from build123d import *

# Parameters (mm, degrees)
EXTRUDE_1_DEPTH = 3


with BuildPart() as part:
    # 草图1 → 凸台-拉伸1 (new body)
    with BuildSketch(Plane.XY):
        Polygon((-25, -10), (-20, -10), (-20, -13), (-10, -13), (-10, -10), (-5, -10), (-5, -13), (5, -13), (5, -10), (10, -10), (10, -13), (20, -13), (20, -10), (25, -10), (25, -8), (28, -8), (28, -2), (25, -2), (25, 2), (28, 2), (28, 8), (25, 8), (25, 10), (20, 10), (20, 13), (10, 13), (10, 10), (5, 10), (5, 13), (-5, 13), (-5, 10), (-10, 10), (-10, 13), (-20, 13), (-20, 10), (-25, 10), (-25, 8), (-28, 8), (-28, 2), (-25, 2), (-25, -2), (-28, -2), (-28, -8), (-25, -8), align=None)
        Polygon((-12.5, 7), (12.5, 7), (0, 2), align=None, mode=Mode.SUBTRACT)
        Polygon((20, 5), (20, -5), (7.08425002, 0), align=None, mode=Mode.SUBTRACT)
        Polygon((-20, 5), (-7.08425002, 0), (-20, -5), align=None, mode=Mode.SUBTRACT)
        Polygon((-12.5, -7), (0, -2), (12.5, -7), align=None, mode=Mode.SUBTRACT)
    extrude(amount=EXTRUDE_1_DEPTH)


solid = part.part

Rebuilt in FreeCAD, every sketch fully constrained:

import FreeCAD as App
import Part
import Sketcher

doc = App.newDocument("Part")
body = doc.addObject("PartDesign::Body", "Body")

sketch1 = body.newObject("Sketcher::SketchObject", "Sketch")
sketch1.AttachmentSupport = (doc.getObject("XY_Plane"), [""])
sketch1.MapMode = "FlatFace"
sketch1.addGeometry(Part.LineSegment(App.Vector(-25, -10, 0), App.Vector(-20, -10, 0)), False)
sketch1.addGeometry(Part.LineSegment(App.Vector(-20, -10, 0), App.Vector(-20, -13, 0)), False)
sketch1.addGeometry(Part.LineSegment(App.Vector(-20, -13, 0), App.Vector(-10, -13, 0)), False)
sketch1.addGeometry(Part.LineSegment(App.Vector(-10, -13, 0), App.Vector(-10, -10, 0)), False)
sketch1.addGeometry(Part.LineSegment(App.Vector(-10, -10, 0), App.Vector(-5, -10, 0)), False)
sketch1.addGeometry(Part.LineSegment(App.Vector(-5, -10, 0), App.Vector(-5, -13, 0)), False)
sketch1.addGeometry(Part.LineSegment(App.Vector(-5, -13, 0), App.Vector(5, -13, 0)), False)
sketch1.addGeometry(Part.LineSegment(App.Vector(5, -13, 0), App.Vector(5, -10, 0)), False)
sketch1.addGeometry(Part.LineSegment(App.Vector(5, -10, 0), App.Vector(10, -10, 0)), False)
sketch1.addGeometry(Part.LineSegment(App.Vector(10, -10, 0), App.Vector(10, -13, 0)), False)
sketch1.addGeometry(Part.LineSegment(App.Vector(10, -13, 0), App.Vector(20, -13, 0)), False)
sketch1.addGeometry(Part.LineSegment(App.Vector(20, -13, 0), App.Vector(20, -10, 0)), False)
sketch1.addGeometry(Part.LineSegment(App.Vector(20, -10, 0), App.Vector(25, -10, 0)), False)
sketch1.addGeometry(Part.LineSegment(App.Vector(25, -10, 0), App.Vector(25, -8, 0)), False)
sketch1.addGeometry(Part.LineSegment(App.Vector(25, -8, 0), App.Vector(28, -8, 0)), False)
sketch1.addGeometry(Part.LineSegment(App.Vector(28, -8, 0), App.Vector(28, -2, 0)), False)
sketch1.addGeometry(Part.LineSegment(App.Vector(28, -2, 0), App.Vector(25, -2, 0)), False)
sketch1.addGeometry(Part.LineSegment(App.Vector(25, -2, 0), App.Vector(25, 2, 0)), False)
sketch1.addGeometry(Part.LineSegment(App.Vector(25, 2, 0), App.Vector(28, 2, 0)), False)
sketch1.addGeometry(Part.LineSegment(App.Vector(28, 2, 0), App.Vector(28, 8, 0)), False)
sketch1.addGeometry(Part.LineSegment(App.Vector(28, 8, 0), App.Vector(25, 8, 0)), False)
sketch1.addGeometry(Part.LineSegment(App.Vector(25, 8, 0), App.Vector(25, 10, 0)), False)
sketch1.addGeometry(Part.LineSegment(App.Vector(25, 10, 0), App.Vector(20, 10, 0)), False)
sketch1.addGeometry(Part.LineSegment(App.Vector(20, 10, 0), App.Vector(20, 13, 0)), False)
sketch1.addGeometry(Part.LineSegment(App.Vector(20, 13, 0), App.Vector(10, 13, 0)), False)
sketch1.addGeometry(Part.LineSegment(App.Vector(10, 13, 0), App.Vector(10, 10, 0)), False)
sketch1.addGeometry(Part.LineSegment(App.Vector(10, 10, 0), App.Vector(5, 10, 0)), False)
sketch1.addGeometry(Part.LineSegment(App.Vector(5, 10, 0), App.Vector(5, 13, 0)), False)
sketch1.addGeometry(Part.LineSegment(App.Vector(5, 13, 0), App.Vector(-5, 13, 0)), False)
sketch1.addGeometry(Part.LineSegment(App.Vector(-5, 13, 0), App.Vector(-5, 10, 0)), False)
sketch1.addGeometry(Part.LineSegment(App.Vector(-5, 10, 0), App.Vector(-10, 10, 0)), False)
sketch1.addGeometry(Part.LineSegment(App.Vector(-10, 10, 0), App.Vector(-10, 13, 0)), False)
sketch1.addGeometry(Part.LineSegment(App.Vector(-10, 13, 0), App.Vector(-20, 13, 0)), False)
sketch1.addGeometry(Part.LineSegment(App.Vector(-20, 13, 0), App.Vector(-20, 10, 0)), False)
sketch1.addGeometry(Part.LineSegment(App.Vector(-20, 10, 0), App.Vector(-25, 10, 0)), False)
sketch1.addGeometry(Part.LineSegment(App.Vector(-25, 10, 0), App.Vector(-25, 8, 0)), False)
sketch1.addGeometry(Part.LineSegment(App.Vector(-25, 8, 0), App.Vector(-28, 8, 0)), False)
sketch1.addGeometry(Part.LineSegment(App.Vector(-28, 8, 0), App.Vector(-28, 2, 0)), False)
sketch1.addGeometry(Part.LineSegment(App.Vector(-28, 2, 0), App.Vector(-25, 2, 0)), False)
sketch1.addGeometry(Part.LineSegment(App.Vector(-25, 2, 0), App.Vector(-25, -2, 0)), False)
sketch1.addGeometry(Part.LineSegment(App.Vector(-25, -2, 0), App.Vector(-28, -2, 0)), False)
sketch1.addGeometry(Part.LineSegment(App.Vector(-28, -2, 0), App.Vector(-28, -8, 0)), False)
sketch1.addGeometry(Part.LineSegment(App.Vector(-28, -8, 0), App.Vector(-25, -8, 0)), False)
sketch1.addGeometry(Part.LineSegment(App.Vector(-25, -8, 0), App.Vector(-25, -10, 0)), False)
sketch1.addGeometry(Part.LineSegment(App.Vector(12.5, -7, 0), App.Vector(-12.5, -7, 0)), False)
sketch1.addGeometry(Part.LineSegment(App.Vector(-12.5, -7, 0), App.Vector(0, -2, 0)), False)
sketch1.addGeometry(Part.LineSegment(App.Vector(0, -2, 0), App.Vector(12.5, -7, 0)), False)
sketch1.addGeometry(Part.LineSegment(App.Vector(-20, -5, 0), App.Vector(-20, 5, 0)), False)
sketch1.addGeometry(Part.LineSegment(App.Vector(-20, 5, 0), App.Vector(-7.1, 0, 0)), False)
sketch1.addGeometry(Part.LineSegment(App.Vector(-7.1, 0, 0), App.Vector(-20, -5, 0)), False)
sketch1.addGeometry(Part.LineSegment(App.Vector(7.1, 0, 0), App.Vector(20, 5, 0)), False)
sketch1.addGeometry(Part.LineSegment(App.Vector(20, 5, 0), App.Vector(20, -5, 0)), False)
sketch1.addGeometry(Part.LineSegment(App.Vector(20, -5, 0), App.Vector(7.1, 0, 0)), False)
sketch1.addGeometry(Part.LineSegment(App.Vector(0, 2, 0), App.Vector(-12.5, 7, 0)), False)
sketch1.addGeometry(Part.LineSegment(App.Vector(-12.5, 7, 0), App.Vector(12.5, 7, 0)), False)
sketch1.addGeometry(Part.LineSegment(App.Vector(12.5, 7, 0), App.Vector(0, 2, 0)), False)
sketch1.addConstraint(Sketcher.Constraint("Coincident", 0, 2, 1, 1))
sketch1.addConstraint(Sketcher.Constraint("Coincident", 1, 2, 2, 1))
sketch1.addConstraint(Sketcher.Constraint("Coincident", 2, 2, 3, 1))
sketch1.addConstraint(Sketcher.Constraint("Coincident", 3, 2, 4, 1))
sketch1.addConstraint(Sketcher.Constraint("Coincident", 4, 2, 5, 1))
sketch1.addConstraint(Sketcher.Constraint("Coincident", 5, 2, 6, 1))
sketch1.addConstraint(Sketcher.Constraint("Coincident", 6, 2, 7, 1))
sketch1.addConstraint(Sketcher.Constraint("Coincident", 7, 2, 8, 1))
sketch1.addConstraint(Sketcher.Constraint("Coincident", 8, 2, 9, 1))
sketch1.addConstraint(Sketcher.Constraint("Coincident", 9, 2, 10, 1))
sketch1.addConstraint(Sketcher.Constraint("Coincident", 10, 2, 11, 1))
sketch1.addConstraint(Sketcher.Constraint("Coincident", 11, 2, 12, 1))
sketch1.addConstraint(Sketcher.Constraint("Coincident", 12, 2, 13, 1))
sketch1.addConstraint(Sketcher.Constraint("Coincident", 13, 2, 14, 1))
sketch1.addConstraint(Sketcher.Constraint("Coincident", 14, 2, 15, 1))
sketch1.addConstraint(Sketcher.Constraint("Coincident", 15, 2, 16, 1))
sketch1.addConstraint(Sketcher.Constraint("Coincident", 16, 2, 17, 1))
sketch1.addConstraint(Sketcher.Constraint("Coincident", 17, 2, 18, 1))
sketch1.addConstraint(Sketcher.Constraint("Coincident", 18, 2, 19, 1))
sketch1.addConstraint(Sketcher.Constraint("Coincident", 19, 2, 20, 1))
sketch1.addConstraint(Sketcher.Constraint("Coincident", 20, 2, 21, 1))
sketch1.addConstraint(Sketcher.Constraint("Coincident", 21, 2, 22, 1))
sketch1.addConstraint(Sketcher.Constraint("Coincident", 22, 2, 23, 1))
sketch1.addConstraint(Sketcher.Constraint("Coincident", 23, 2, 24, 1))
sketch1.addConstraint(Sketcher.Constraint("Coincident", 24, 2, 25, 1))
sketch1.addConstraint(Sketcher.Constraint("Coincident", 25, 2, 26, 1))
sketch1.addConstraint(Sketcher.Constraint("Coincident", 26, 2, 27, 1))
sketch1.addConstraint(Sketcher.Constraint("Coincident", 27, 2, 28, 1))
sketch1.addConstraint(Sketcher.Constraint("Coincident", 28, 2, 29, 1))
sketch1.addConstraint(Sketcher.Constraint("Coincident", 29, 2, 30, 1))
sketch1.addConstraint(Sketcher.Constraint("Coincident", 30, 2, 31, 1))
sketch1.addConstraint(Sketcher.Constraint("Coincident", 31, 2, 32, 1))
sketch1.addConstraint(Sketcher.Constraint("Coincident", 32, 2, 33, 1))
sketch1.addConstraint(Sketcher.Constraint("Coincident", 33, 2, 34, 1))
sketch1.addConstraint(Sketcher.Constraint("Coincident", 34, 2, 35, 1))
sketch1.addConstraint(Sketcher.Constraint("Coincident", 35, 2, 36, 1))
sketch1.addConstraint(Sketcher.Constraint("Coincident", 36, 2, 37, 1))
sketch1.addConstraint(Sketcher.Constraint("Coincident", 37, 2, 38, 1))
sketch1.addConstraint(Sketcher.Constraint("Coincident", 38, 2, 39, 1))
sketch1.addConstraint(Sketcher.Constraint("Coincident", 39, 2, 40, 1))
sketch1.addConstraint(Sketcher.Constraint("Coincident", 40, 2, 41, 1))
sketch1.addConstraint(Sketcher.Constraint("Coincident", 41, 2, 42, 1))
sketch1.addConstraint(Sketcher.Constraint("Coincident", 42, 2, 43, 1))
sketch1.addConstraint(Sketcher.Constraint("Coincident", 43, 2, 0, 1))
sketch1.addConstraint(Sketcher.Constraint("Coincident", 44, 2, 45, 1))
sketch1.addConstraint(Sketcher.Constraint("Coincident", 45, 2, 46, 1))
sketch1.addConstraint(Sketcher.Constraint("Coincident", 46, 2, 44, 1))
sketch1.addConstraint(Sketcher.Constraint("Coincident", 47, 2, 48, 1))
sketch1.addConstraint(Sketcher.Constraint("Coincident", 48, 2, 49, 1))
sketch1.addConstraint(Sketcher.Constraint("Coincident", 49, 2, 47, 1))
sketch1.addConstraint(Sketcher.Constraint("Coincident", 50, 2, 51, 1))
sketch1.addConstraint(Sketcher.Constraint("Coincident", 51, 2, 52, 1))
sketch1.addConstraint(Sketcher.Constraint("Coincident", 52, 2, 50, 1))
sketch1.addConstraint(Sketcher.Constraint("Coincident", 53, 2, 54, 1))
sketch1.addConstraint(Sketcher.Constraint("Coincident", 54, 2, 55, 1))
sketch1.addConstraint(Sketcher.Constraint("Coincident", 55, 2, 53, 1))
sketch1.addConstraint(Sketcher.Constraint("Horizontal", 0))
sketch1.addConstraint(Sketcher.Constraint("Vertical", 1))
sketch1.addConstraint(Sketcher.Constraint("Horizontal", 2))
sketch1.addConstraint(Sketcher.Constraint("Vertical", 3))
sketch1.addConstraint(Sketcher.Constraint("Horizontal", 4))
sketch1.addConstraint(Sketcher.Constraint("Vertical", 5))
sketch1.addConstraint(Sketcher.Constraint("Horizontal", 6))
sketch1.addConstraint(Sketcher.Constraint("Vertical", 7))
sketch1.addConstraint(Sketcher.Constraint("Horizontal", 8))
sketch1.addConstraint(Sketcher.Constraint("Vertical", 9))
sketch1.addConstraint(Sketcher.Constraint("Horizontal", 10))
sketch1.addConstraint(Sketcher.Constraint("Vertical", 11))
sketch1.addConstraint(Sketcher.Constraint("Horizontal", 12))
sketch1.addConstraint(Sketcher.Constraint("Vertical", 13))
sketch1.addConstraint(Sketcher.Constraint("Horizontal", 14))
sketch1.addConstraint(Sketcher.Constraint("Vertical", 15))
sketch1.addConstraint(Sketcher.Constraint("Horizontal", 16))
sketch1.addConstraint(Sketcher.Constraint("Vertical", 17))
sketch1.addConstraint(Sketcher.Constraint("Horizontal", 18))
sketch1.addConstraint(Sketcher.Constraint("Vertical", 19))
sketch1.addConstraint(Sketcher.Constraint("Horizontal", 20))
sketch1.addConstraint(Sketcher.Constraint("Vertical", 21))
sketch1.addConstraint(Sketcher.Constraint("Horizontal", 22))
sketch1.addConstraint(Sketcher.Constraint("Vertical", 23))
sketch1.addConstraint(Sketcher.Constraint("Horizontal", 24))
sketch1.addConstraint(Sketcher.Constraint("Vertical", 25))
sketch1.addConstraint(Sketcher.Constraint("Horizontal", 26))
sketch1.addConstraint(Sketcher.Constraint("Vertical", 27))
sketch1.addConstraint(Sketcher.Constraint("Horizontal", 28))
sketch1.addConstraint(Sketcher.Constraint("Vertical", 29))
sketch1.addConstraint(Sketcher.Constraint("Horizontal", 30))
sketch1.addConstraint(Sketcher.Constraint("Vertical", 31))
sketch1.addConstraint(Sketcher.Constraint("Horizontal", 32))
sketch1.addConstraint(Sketcher.Constraint("Vertical", 33))
sketch1.addConstraint(Sketcher.Constraint("Horizontal", 34))
sketch1.addConstraint(Sketcher.Constraint("Vertical", 35))
sketch1.addConstraint(Sketcher.Constraint("Horizontal", 36))
sketch1.addConstraint(Sketcher.Constraint("Vertical", 37))
sketch1.addConstraint(Sketcher.Constraint("Horizontal", 38))
sketch1.addConstraint(Sketcher.Constraint("Vertical", 39))
sketch1.addConstraint(Sketcher.Constraint("Horizontal", 40))
sketch1.addConstraint(Sketcher.Constraint("Vertical", 41))
sketch1.addConstraint(Sketcher.Constraint("Horizontal", 42))
sketch1.addConstraint(Sketcher.Constraint("Vertical", 43))
sketch1.addConstraint(Sketcher.Constraint("Horizontal", 44))
sketch1.addConstraint(Sketcher.Constraint("Vertical", 47))
sketch1.addConstraint(Sketcher.Constraint("Vertical", 51))
sketch1.addConstraint(Sketcher.Constraint("Horizontal", 54))
sketch1.addConstraint(Sketcher.Constraint("Symmetric", 0, 2, 22, 2, -1, 1))
sketch1.addConstraint(Sketcher.Constraint("Symmetric", 2, 2, 24, 2, -1, 1))
sketch1.addConstraint(Sketcher.Constraint("Symmetric", 4, 2, 26, 2, -1, 1))
sketch1.addConstraint(Sketcher.Constraint("Symmetric", 6, 2, 28, 2, -1, 1))
sketch1.addConstraint(Sketcher.Constraint("Symmetric", 8, 2, 30, 2, -1, 1))
sketch1.addConstraint(Sketcher.Constraint("Symmetric", 10, 2, 32, 2, -1, 1))
sketch1.addConstraint(Sketcher.Constraint("Symmetric", 12, 2, 34, 2, -1, 1))
sketch1.addConstraint(Sketcher.Constraint("Symmetric", 14, 2, 36, 2, -1, 1))
sketch1.addConstraint(Sketcher.Constraint("Symmetric", 16, 2, 38, 2, -1, 1))
sketch1.addConstraint(Sketcher.Constraint("Symmetric", 18, 2, 40, 2, -1, 1))
sketch1.addConstraint(Sketcher.Constraint("Symmetric", 20, 2, 42, 2, -1, 1))
sketch1.addConstraint(Sketcher.Constraint("Symmetric", 49, 2, 50, 2, -1, 1))
sketch1.addConstraint(Sketcher.Constraint("Symmetric", 48, 2, 52, 2, -1, 1))
sketch1.addConstraint(Sketcher.Constraint("Symmetric", 46, 2, 53, 2, -1, 1))
sketch1.addConstraint(Sketcher.Constraint("Symmetric", 45, 2, 55, 2, -1, 1))
sketch1.addConstraint(Sketcher.Constraint("Symmetric", 4, 2, 7, 2, -2))
sketch1.addConstraint(Sketcher.Constraint("Symmetric", 2, 2, 9, 2, -2))
sketch1.addConstraint(Sketcher.Constraint("Symmetric", 0, 2, 11, 2, -2))
sketch1.addConstraint(Sketcher.Constraint("Symmetric", 20, 2, 35, 2, -2))
sketch1.addConstraint(Sketcher.Constraint("Symmetric", 18, 2, 37, 2, -2))
sketch1.addConstraint(Sketcher.Constraint("PointOnObject", 45, 2, -2))
sketch1.addConstraint(Sketcher.Constraint("PointOnObject", 48, 2, -1))
sketch1.addConstraint(Sketcher.Constraint("Parallel", 48, 52))
sketch1.addConstraint(Sketcher.Constraint("Parallel", 45, 55))
sketch1.addConstraint(Sketcher.Constraint("Horizontal", 0, 2, 3, 2))
sketch1.addConstraint(Sketcher.Constraint("Horizontal", 2, 2, 5, 2))
sketch1.addConstraint(Sketcher.Constraint("Horizontal", 40, 2, 45, 2))
sketch1.addConstraint(Sketcher.Constraint("Horizontal", 47, 2, 50, 2))
sketch1.addConstraint(Sketcher.Constraint("Vertical", 13, 2, 16, 2))
sketch1.addConstraint(Sketcher.Constraint("Vertical", 33, 2, 47, 2))
sketch1.addConstraint(Sketcher.Constraint("Vertical", 44, 2, 53, 2))
sketch1.addConstraint(Sketcher.Constraint("Equal", 0, 4))
sketch1.addConstraint(Sketcher.Constraint("Equal", 2, 6))
sketch1.addConstraint(Sketcher.Constraint("Equal", 42, 1))
sketch1.addConstraint(Sketcher.Constraint("Equal", 32, 47))
sketch1.addConstraint(Sketcher.Constraint("DistanceX", 0, 1, 0, 2, 5.0))
sketch1.addConstraint(Sketcher.Constraint("DistanceX", 2, 1, 2, 2, 10.0))
sketch1.addConstraint(Sketcher.Constraint("DistanceX", 14, 1, 14, 2, 3.0))
sketch1.addConstraint(Sketcher.Constraint("DistanceX", 44, 2, 44, 1, 25.0))
sketch1.addConstraint(Sketcher.Constraint("DistanceY", 13, 1, 13, 2, 2.0))
sketch1.addConstraint(Sketcher.Constraint("DistanceY", 15, 1, 15, 2, 6.0))
sketch1.addConstraint(Sketcher.Constraint("DistanceY", 17, 1, 17, 2, 4.0))
sketch1.addConstraint(Sketcher.Constraint("DistanceY", 44, 2, -1, 1, 7.0))
sketch1.addConstraint(Sketcher.Constraint("DistanceX", 48, 2, -1, 1, 7.08425))
pad1 = body.newObject("PartDesign::Pad", "Pad")
pad1.Profile = sketch1
pad1.Length = 3

doc.recompute()
